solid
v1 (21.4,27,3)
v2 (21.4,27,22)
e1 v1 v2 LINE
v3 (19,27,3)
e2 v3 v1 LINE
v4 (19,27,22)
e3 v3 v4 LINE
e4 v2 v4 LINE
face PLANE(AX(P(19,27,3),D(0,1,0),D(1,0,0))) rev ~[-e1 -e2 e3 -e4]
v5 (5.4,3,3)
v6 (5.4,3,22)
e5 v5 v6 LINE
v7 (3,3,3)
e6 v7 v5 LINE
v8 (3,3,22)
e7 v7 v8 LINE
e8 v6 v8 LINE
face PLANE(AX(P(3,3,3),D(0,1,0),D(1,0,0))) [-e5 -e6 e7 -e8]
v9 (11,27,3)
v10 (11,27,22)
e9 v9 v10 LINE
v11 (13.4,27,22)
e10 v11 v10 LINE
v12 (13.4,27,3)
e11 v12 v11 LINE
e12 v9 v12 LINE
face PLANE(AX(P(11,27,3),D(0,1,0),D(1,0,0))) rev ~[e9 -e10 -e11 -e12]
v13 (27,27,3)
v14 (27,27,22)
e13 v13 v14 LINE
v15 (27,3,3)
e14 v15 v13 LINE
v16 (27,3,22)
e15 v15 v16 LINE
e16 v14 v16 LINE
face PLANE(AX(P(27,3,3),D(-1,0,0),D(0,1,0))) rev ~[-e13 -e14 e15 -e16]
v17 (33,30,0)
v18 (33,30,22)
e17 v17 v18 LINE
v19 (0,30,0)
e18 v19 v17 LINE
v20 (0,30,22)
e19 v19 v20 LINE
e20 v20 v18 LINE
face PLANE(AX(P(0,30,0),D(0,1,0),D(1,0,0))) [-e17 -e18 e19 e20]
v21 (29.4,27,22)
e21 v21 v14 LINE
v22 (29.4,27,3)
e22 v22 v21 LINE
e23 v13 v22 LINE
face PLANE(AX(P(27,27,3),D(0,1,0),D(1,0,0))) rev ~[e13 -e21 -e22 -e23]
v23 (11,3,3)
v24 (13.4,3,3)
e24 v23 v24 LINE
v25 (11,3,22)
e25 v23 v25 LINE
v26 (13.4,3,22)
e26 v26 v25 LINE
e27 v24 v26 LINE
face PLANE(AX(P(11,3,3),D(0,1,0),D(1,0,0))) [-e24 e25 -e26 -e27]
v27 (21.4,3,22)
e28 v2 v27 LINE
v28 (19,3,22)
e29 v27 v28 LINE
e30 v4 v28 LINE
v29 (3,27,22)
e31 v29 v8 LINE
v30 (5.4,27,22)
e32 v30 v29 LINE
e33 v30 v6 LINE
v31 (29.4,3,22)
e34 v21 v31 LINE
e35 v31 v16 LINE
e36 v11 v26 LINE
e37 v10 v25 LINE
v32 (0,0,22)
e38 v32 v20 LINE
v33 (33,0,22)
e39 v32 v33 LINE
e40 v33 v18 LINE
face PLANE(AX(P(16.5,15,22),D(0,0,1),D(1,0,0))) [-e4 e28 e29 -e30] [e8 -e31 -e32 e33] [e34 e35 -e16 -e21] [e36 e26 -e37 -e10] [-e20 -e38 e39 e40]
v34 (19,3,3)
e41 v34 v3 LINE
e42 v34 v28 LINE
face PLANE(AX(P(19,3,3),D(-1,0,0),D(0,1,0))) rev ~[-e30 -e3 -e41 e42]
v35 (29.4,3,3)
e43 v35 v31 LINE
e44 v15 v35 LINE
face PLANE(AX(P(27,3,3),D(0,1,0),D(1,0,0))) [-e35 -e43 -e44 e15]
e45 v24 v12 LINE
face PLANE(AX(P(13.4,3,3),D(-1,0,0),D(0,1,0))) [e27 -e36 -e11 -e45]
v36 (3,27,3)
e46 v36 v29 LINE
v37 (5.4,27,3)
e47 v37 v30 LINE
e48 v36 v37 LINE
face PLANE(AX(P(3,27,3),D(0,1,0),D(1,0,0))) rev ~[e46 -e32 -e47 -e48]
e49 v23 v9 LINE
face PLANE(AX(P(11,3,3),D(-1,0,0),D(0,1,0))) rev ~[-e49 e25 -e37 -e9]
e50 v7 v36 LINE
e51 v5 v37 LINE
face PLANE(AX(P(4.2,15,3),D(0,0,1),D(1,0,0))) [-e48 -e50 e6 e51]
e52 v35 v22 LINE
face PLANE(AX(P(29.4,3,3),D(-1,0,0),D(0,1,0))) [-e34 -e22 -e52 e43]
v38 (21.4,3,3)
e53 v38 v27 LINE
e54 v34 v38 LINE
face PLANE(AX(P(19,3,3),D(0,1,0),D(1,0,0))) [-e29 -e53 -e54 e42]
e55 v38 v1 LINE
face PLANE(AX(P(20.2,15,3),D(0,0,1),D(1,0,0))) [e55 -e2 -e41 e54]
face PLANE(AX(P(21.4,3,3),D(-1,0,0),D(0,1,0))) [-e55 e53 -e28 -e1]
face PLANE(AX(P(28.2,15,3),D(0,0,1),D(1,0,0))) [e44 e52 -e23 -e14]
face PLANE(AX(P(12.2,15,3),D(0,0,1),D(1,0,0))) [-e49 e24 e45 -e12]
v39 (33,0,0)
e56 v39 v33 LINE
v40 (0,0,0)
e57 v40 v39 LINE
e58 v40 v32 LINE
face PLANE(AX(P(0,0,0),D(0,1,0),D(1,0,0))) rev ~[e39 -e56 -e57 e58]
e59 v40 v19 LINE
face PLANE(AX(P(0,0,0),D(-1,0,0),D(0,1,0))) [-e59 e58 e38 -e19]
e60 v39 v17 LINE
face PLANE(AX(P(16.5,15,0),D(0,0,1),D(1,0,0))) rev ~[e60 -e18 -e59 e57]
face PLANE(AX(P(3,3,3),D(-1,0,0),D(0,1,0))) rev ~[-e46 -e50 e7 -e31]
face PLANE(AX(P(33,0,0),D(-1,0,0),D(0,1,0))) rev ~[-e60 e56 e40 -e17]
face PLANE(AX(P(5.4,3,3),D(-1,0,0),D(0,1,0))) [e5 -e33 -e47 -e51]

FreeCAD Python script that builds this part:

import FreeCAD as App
import Part
import Sketcher
from FreeCAD import Vector

doc = App.newDocument("Part")
body = doc.addObject("PartDesign::Body", "Body")

# Sketch on XY plane
sketch1 = body.newObject("Sketcher::SketchObject", "Sketch")
sketch1.AttachmentSupport = (doc.getObject("XY_Plane"), [""])
sketch1.MapMode = "FlatFace"
sketch1.AttachmentOffset = App.Placement(Vector(0, 0, 3), App.Rotation())
sketch1.addGeometry([
    Part.LineSegment(Vector(11, 27, 0), Vector(11, 3, 0)),
    Part.LineSegment(Vector(11, 3, 0), Vector(13.4, 3, 0)),
    Part.LineSegment(Vector(13.4, 3, 0), Vector(13.4, 27, 0)),
    Part.LineSegment(Vector(13.4, 27, 0), Vector(11, 27, 0)),
], False)
sketch1.addConstraint([
    Sketcher.Constraint("Coincident", 0, 2, 1, 1),
    Sketcher.Constraint("Coincident", 1, 2, 2, 1),
    Sketcher.Constraint("Coincident", 2, 2, 3, 1),
    Sketcher.Constraint("Coincident", 3, 2, 0, 1),
    Sketcher.Constraint("Vertical", 0),
    Sketcher.Constraint("Horizontal", 1),
    Sketcher.Constraint("Vertical", 2),
    Sketcher.Constraint("Horizontal", 3),
    Sketcher.Constraint("DistanceY", 0, 2, 0, 1, 24.0),
    Sketcher.Constraint("DistanceX", 1, 1, 1, 2, 2.4),
    Sketcher.Constraint("DistanceX", -1, 1, 0, 2, 11.0),
    Sketcher.Constraint("DistanceY", -1, 1, 0, 2, 3.0),
])
pad1 = body.newObject("PartDesign::Pad", "Pad")
pad1.Profile = sketch1
pad1.Length = 22
body2 = doc.addObject("PartDesign::Body", "Body001")

# Sketch on XY plane
sketch2 = body2.newObject("Sketcher::SketchObject", "Sketch001")
sketch2.AttachmentSupport = (doc.getObject("XY_Plane001"), [""])
sketch2.MapMode = "FlatFace"
sketch2.AttachmentOffset = App.Placement(Vector(0, 0, 3), App.Rotation())
sketch2.addGeometry([
    Part.LineSegment(Vector(19, 27, 0), Vector(19, 3, 0)),
    Part.LineSegment(Vector(19, 3, 0), Vector(21.4, 3, 0)),
    Part.LineSegment(Vector(21.4, 3, 0), Vector(21.4, 27, 0)),
    Part.LineSegment(Vector(21.4, 27, 0), Vector(19, 27, 0)),
], False)
sketch2.addConstraint([
    Sketcher.Constraint("Coincident", 0, 2, 1, 1),
    Sketcher.Constraint("Coincident", 1, 2, 2, 1),
    Sketcher.Constraint("Coincident", 2, 2, 3, 1),
    Sketcher.Constraint("Coincident", 3, 2, 0, 1),
    Sketcher.Constraint("Vertical", 0),
    Sketcher.Constraint("Horizontal", 1),
    Sketcher.Constraint("Vertical", 2),
    Sketcher.Constraint("Horizontal", 3),
    Sketcher.Constraint("DistanceY", 0, 2, 0, 1, 24.0),
    Sketcher.Constraint("DistanceX", 1, 1, 1, 2, 2.4),
    Sketcher.Constraint("DistanceX", -1, 1, 0, 2, 19.0),
    Sketcher.Constraint("DistanceY", -1, 1, 0, 2, 3.0),
])
pad2 = body2.newObject("PartDesign::Pad", "Pad001")
pad2.Profile = sketch2
pad2.Length = 22
body3 = doc.addObject("PartDesign::Body", "Body002")

# Sketch on XY plane
sketch3 = body3.newObject("Sketcher::SketchObject", "Sketch002")
sketch3.AttachmentSupport = (doc.getObject("XY_Plane002"), [""])
sketch3.MapMode = "FlatFace"
sketch3.AttachmentOffset = App.Placement(Vector(0, 0, 3), App.Rotation())
sketch3.addGeometry([
    Part.LineSegment(Vector(27, 27, 0), Vector(27, 3, 0)),
    Part.LineSegment(Vector(27, 3, 0), Vector(29.4, 3, 0)),
    Part.LineSegment(Vector(29.4, 3, 0), Vector(29.4, 27, 0)),
    Part.LineSegment(Vector(29.4, 27, 0), Vector(27, 27, 0)),
], False)
sketch3.addConstraint([
    Sketcher.Constraint("Coincident", 0, 2, 1, 1),
    Sketcher.Constraint("Coincident", 1, 2, 2, 1),
    Sketcher.Constraint("Coincident", 2, 2, 3, 1),
    Sketcher.Constraint("Coincident", 3, 2, 0, 1),
    Sketcher.Constraint("Vertical", 0),
    Sketcher.Constraint("Horizontal", 1),
    Sketcher.Constraint("Vertical", 2),
    Sketcher.Constraint("Horizontal", 3),
    Sketcher.Constraint("DistanceY", 0, 2, 0, 1, 24.0),
    Sketcher.Constraint("DistanceX", 1, 1, 1, 2, 2.4),
    Sketcher.Constraint("DistanceX", -1, 1, 0, 2, 27.0),
    Sketcher.Constraint("DistanceY", -1, 1, 0, 2, 3.0),
])
pad3 = body3.newObject("PartDesign::Pad", "Pad002")
pad3.Profile = sketch3
pad3.Length = 22
body4 = doc.addObject("PartDesign::Body", "Body003")
body4.AllowCompound = True

# Sketch on XY plane
sketch4 = body4.newObject("Sketcher::SketchObject", "Sketch003")
sketch4.AttachmentSupport = (doc.getObject("XY_Plane003"), [""])
sketch4.MapMode = "FlatFace"
sketch4.AttachmentOffset = App.Placement(Vector(0, 0, 3), App.Rotation())
sketch4.addGeometry([
    Part.LineSegment(Vector(3, 27, 0), Vector(3, 3, 0)),
    Part.LineSegment(Vector(3, 3, 0), Vector(5.4, 3, 0)),
    Part.LineSegment(Vector(5.4, 3, 0), Vector(5.4, 27, 0)),
    Part.LineSegment(Vector(5.4, 27, 0), Vector(3, 27, 0)),
], False)
sketch4.addConstraint([
    Sketcher.Constraint("Coincident", 0, 2, 1, 1),
    Sketcher.Constraint("Coincident", 1, 2, 2, 1),
    Sketcher.Constraint("Coincident", 2, 2, 3, 1),
    Sketcher.Constraint("Coincident", 3, 2, 0, 1),
    Sketcher.Constraint("Vertical", 0),
    Sketcher.Constraint("Horizontal", 1),
    Sketcher.Constraint("Vertical", 2),
    Sketcher.Constraint("Horizontal", 3),
    Sketcher.Constraint("DistanceY", 0, 2, 0, 1, 24.0),
    Sketcher.Constraint("DistanceX", 1, 1, 1, 2, 2.4),
    Sketcher.Constraint("DistanceX", -1, 1, 0, 2, 3.0),
    Sketcher.Constraint("DistanceY", -1, 1, 0, 2, 3.0),
])
pad4 = body4.newObject("PartDesign::Pad", "Pad003")
pad4.Profile = sketch4
pad4.Length = 22
doc.recompute()

boolean = body4.newObject("PartDesign::Boolean", "Boolean")
boolean.Type = "Fuse"
boolean.addObjects([body])
doc.recompute()

boolean2 = body4.newObject("PartDesign::Boolean", "Boolean001")
boolean2.Type = "Fuse"
boolean2.addObjects([body2])
doc.recompute()

boolean3 = body4.newObject("PartDesign::Boolean", "Boolean002")
boolean3.Type = "Fuse"
boolean3.addObjects([body3])
body5 = doc.addObject("PartDesign::Body", "Body004")

# Sketch on XY plane
sketch5 = body5.newObject("Sketcher::SketchObject", "Sketch004")
sketch5.AttachmentSupport = (doc.getObject("XY_Plane004"), [""])
sketch5.MapMode = "FlatFace"
sketch5.addGeometry([
    Part.LineSegment(Vector(0, 30, 0), Vector(0, 0, 0)),
    Part.LineSegment(Vector(0, 0, 0), Vector(33, 0, 0)),
    Part.LineSegment(Vector(33, 0, 0), Vector(33, 30, 0)),
    Part.LineSegment(Vector(33, 30, 0), Vector(0, 30, 0)),
], False)
sketch5.addConstraint([
    Sketcher.Constraint("Coincident", 0, 2, 1, 1),
    Sketcher.Constraint("Coincident", 1, 2, 2, 1),
    Sketcher.Constraint("Coincident", 2, 2, 3, 1),
    Sketcher.Constraint("Coincident", 3, 2, 0, 1),
    Sketcher.Constraint("Vertical", 0),
    Sketcher.Constraint("Horizontal", 1),
    Sketcher.Constraint("Vertical", 2),
    Sketcher.Constraint("Horizontal", 3),
    Sketcher.Constraint("Coincident", 0, 2, -1, 1),
    Sketcher.Constraint("DistanceX", 1, 1, 1, 2, 33.0),
    Sketcher.Constraint("DistanceY", 0, 2, 0, 1, 30.0),
])
pad5 = body5.newObject("PartDesign::Pad", "Pad004")
pad5.Profile = sketch5
pad5.Length = 22
doc.recompute()

boolean4 = body5.newObject("PartDesign::Boolean", "Boolean003")
boolean4.Type = "Cut"
boolean4.addObjects([body4])

doc.recompute()
